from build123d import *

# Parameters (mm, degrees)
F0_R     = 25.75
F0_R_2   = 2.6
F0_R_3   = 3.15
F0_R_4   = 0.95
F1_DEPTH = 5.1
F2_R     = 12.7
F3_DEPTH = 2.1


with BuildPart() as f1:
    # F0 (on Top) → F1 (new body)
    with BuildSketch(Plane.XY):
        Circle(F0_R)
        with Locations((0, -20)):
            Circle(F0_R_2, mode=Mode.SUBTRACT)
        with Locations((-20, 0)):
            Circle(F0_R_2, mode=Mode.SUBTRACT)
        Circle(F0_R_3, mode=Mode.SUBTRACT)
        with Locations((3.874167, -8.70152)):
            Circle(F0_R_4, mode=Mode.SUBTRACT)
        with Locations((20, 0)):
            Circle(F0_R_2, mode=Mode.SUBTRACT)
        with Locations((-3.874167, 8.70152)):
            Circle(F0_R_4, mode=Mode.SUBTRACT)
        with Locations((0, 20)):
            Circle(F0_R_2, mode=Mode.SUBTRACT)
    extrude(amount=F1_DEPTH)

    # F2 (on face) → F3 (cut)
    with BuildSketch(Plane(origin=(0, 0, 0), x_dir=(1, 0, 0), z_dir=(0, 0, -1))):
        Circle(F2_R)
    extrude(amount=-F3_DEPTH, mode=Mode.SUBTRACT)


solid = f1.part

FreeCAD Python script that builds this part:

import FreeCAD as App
import Part
import Sketcher

V = App.Vector
Q = App.Units.Quantity

doc = App.newDocument("Part")
body = doc.addObject("PartDesign::Body", "Body")

# Sketch on XY plane
sketch1 = body.newObject("Sketcher::SketchObject", "Sketch")
sketch1.AttachmentSupport = (doc.getObject("XY_Plane"), [""])
sketch1.MapMode = "FlatFace"
sketch1.addGeometry([
    Part.Circle(V(0, 0, 0), V(0, 0, 1), 25.8),  # 0
    Part.Circle(V(0, -20, 0), V(0, 0, 1), 2.6),  # 1
    Part.Circle(V(3.9, -8.7, 0), V(0, 0, 1), 0.9),  # 2
    Part.Circle(V(-20, 0, 0), V(0, 0, 1), 2.6),  # 3
    Part.Circle(V(-3.9, 8.7, 0), V(0, 0, 1), 0.9),  # 4
    Part.Circle(V(0, 0, 0), V(0, 0, 1), 3.1),  # 5
    Part.Circle(V(20, 0, 0), V(0, 0, 1), 2.6),  # 6
    Part.Circle(V(0, 20, 0), V(0, 0, 1), 2.6),  # 7
], False)
sketch1.addConstraint([
    Sketcher.Constraint("Coincident", 0, 3, -1, 1),
    Sketcher.Constraint("Coincident", 5, 3, -1, 1),
    Sketcher.Constraint("Equal", 1, 3),
    Sketcher.Constraint("Equal", 2, 4),
    Sketcher.Constraint("Equal", 3, 6),
    Sketcher.Constraint("Equal", 6, 7),
    Sketcher.Constraint("Symmetric", 2, 3, 4, 3, -1, 1),
    Sketcher.Constraint("Symmetric", 3, 3, 6, 3, -1, 1),
    Sketcher.Constraint("Symmetric", 1, 3, 7, 3, -1, 1),
    Sketcher.Constraint("PointOnObject", 1, 3, -2),
    Sketcher.Constraint("PointOnObject", 3, 3, -1),
    Sketcher.Constraint("Diameter", 0, Q("51.5 mm")),
    Sketcher.Constraint("Diameter", 1, Q("5.2 mm")),
    Sketcher.Constraint("Diameter", 2, Q("1.9 mm")),
    Sketcher.Constraint("Diameter", 5, Q("6.3 mm")),
    Sketcher.Constraint("DistanceY", 1, 3, -1, 1, Q("20 mm")),
    Sketcher.Constraint("DistanceX", 3, 3, -1, 1, Q("20 mm")),
    Sketcher.Constraint("DistanceY", 2, 3, -1, 1, Q("8.70152 mm")),
    Sketcher.Constraint("DistanceX", -1, 1, 2, 3, Q("3.874167 mm")),
])
pad1 = body.newObject("PartDesign::Pad", "Pad")
pad1.Profile = sketch1
pad1.Length = 5.1

# Sketch on XY plane
sketch2 = body.newObject("Sketcher::SketchObject", "Sketch001")
sketch2.AttachmentSupport = (doc.getObject("XY_Plane"), [""])
sketch2.MapMode = "FlatFace"
sketch2.addGeometry(Part.Circle(V(0, 0, 0), V(0, 0, 1), 13), False)
sketch2.addConstraint([
    Sketcher.Constraint("Coincident", 0, 3, -1, 1),
    Sketcher.Constraint("Diameter", 0, Q("25.4 mm")),
])
pocket1 = body.newObject("PartDesign::Pocket", "Pocket")
pocket1.Profile = sketch2
pocket1.Length = 2.1
pocket1.Reversed = True

doc.recompute()
